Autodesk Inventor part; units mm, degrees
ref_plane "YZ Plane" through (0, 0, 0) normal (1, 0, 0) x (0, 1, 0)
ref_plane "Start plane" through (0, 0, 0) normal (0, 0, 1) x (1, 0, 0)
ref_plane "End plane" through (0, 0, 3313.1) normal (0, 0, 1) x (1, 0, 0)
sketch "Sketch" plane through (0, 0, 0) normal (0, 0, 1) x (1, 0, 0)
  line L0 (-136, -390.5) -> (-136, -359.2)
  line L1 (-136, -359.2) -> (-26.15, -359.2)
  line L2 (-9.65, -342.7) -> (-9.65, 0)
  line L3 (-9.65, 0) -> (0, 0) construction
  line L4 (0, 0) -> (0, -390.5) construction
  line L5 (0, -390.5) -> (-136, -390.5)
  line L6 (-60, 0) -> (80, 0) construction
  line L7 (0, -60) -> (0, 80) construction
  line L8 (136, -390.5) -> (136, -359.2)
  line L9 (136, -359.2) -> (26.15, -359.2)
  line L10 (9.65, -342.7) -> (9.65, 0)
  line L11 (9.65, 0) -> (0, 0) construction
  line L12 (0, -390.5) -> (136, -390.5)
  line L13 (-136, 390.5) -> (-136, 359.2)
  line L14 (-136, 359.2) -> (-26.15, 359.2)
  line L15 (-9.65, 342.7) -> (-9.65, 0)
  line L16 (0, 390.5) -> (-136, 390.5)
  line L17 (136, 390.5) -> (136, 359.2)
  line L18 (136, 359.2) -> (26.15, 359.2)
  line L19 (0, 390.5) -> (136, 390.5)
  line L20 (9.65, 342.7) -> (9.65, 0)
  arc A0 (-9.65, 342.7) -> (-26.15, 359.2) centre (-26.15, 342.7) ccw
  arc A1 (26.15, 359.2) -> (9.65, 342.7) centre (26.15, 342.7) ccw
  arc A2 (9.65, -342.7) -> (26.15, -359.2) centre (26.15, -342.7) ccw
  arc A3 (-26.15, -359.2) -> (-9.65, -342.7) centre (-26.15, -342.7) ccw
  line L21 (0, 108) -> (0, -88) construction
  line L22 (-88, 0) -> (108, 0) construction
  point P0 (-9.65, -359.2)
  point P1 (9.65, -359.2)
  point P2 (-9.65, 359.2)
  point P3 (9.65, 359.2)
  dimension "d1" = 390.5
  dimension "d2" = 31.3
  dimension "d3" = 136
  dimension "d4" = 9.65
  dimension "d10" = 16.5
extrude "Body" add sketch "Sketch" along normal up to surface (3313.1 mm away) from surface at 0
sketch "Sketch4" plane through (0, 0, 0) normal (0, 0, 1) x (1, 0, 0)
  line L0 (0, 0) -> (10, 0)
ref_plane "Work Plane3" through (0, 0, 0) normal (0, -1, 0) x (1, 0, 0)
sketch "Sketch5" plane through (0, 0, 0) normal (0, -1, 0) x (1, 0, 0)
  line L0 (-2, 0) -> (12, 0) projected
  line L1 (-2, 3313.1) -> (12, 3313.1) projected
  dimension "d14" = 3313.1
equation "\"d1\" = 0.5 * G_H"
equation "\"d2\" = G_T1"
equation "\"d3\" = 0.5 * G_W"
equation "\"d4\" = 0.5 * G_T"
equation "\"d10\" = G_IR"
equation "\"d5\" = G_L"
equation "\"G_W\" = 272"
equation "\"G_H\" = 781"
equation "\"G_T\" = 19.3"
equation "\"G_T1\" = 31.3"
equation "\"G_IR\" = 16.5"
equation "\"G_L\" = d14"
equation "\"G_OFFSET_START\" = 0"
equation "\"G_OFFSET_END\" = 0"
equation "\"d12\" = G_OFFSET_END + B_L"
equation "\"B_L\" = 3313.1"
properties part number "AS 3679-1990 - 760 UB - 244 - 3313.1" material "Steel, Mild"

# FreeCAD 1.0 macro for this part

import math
import FreeCAD as App
import Part
import Sketcher

V = App.Vector
Q = App.Units.Quantity

doc = App.newDocument("Part")
body = doc.addObject("PartDesign::Body", "Body")

# Sketch on XY plane
sketch1 = doc.addObject("Sketcher::SketchObject", "Sketch")
body.addObject(sketch1)
sketch1.AttachmentSupport = (doc.XY_Plane, [""])
sketch1.MapMode = "FlatFace"
sketch1.addGeometry([
    Part.LineSegment(V(-136, -359, 0), V(-136, -390, 0)),  # 0
    Part.LineSegment(V(-136, -390, 0), V(136, -390, 0)),  # 1
    Part.LineSegment(V(136, -390, 0), V(136, -359, 0)),  # 2
    Part.LineSegment(V(136, -359, 0), V(26, -359, 0)),  # 3
    Part.ArcOfCircle(Part.Circle(V(26, -343, 0), V(0, 0, 1), 16), math.radians(180), math.radians(270)),  # 4
    Part.LineSegment(V(10, -343, 0), V(10, 343, 0)),  # 5
    Part.ArcOfCircle(Part.Circle(V(26, 343, 0), V(0, 0, 1), 16), math.radians(90), math.radians(180)),  # 6
    Part.LineSegment(V(26, 359, 0), V(136, 359, 0)),  # 7
    Part.LineSegment(V(136, 359, 0), V(136, 390, 0)),  # 8
    Part.LineSegment(V(136, 390, 0), V(-136, 390, 0)),  # 9
    Part.LineSegment(V(-136, 390, 0), V(-136, 359, 0)),  # 10
    Part.LineSegment(V(-136, 359, 0), V(-26, 359, 0)),  # 11
    Part.ArcOfCircle(Part.Circle(V(-26, 343, 0), V(0, 0, 1), 16), math.radians(0), math.radians(90)),  # 12
    Part.LineSegment(V(-10, 343, 0), V(-10, -343, 0)),  # 13
    Part.ArcOfCircle(Part.Circle(V(-26, -343, 0), V(0, 0, 1), 16), math.radians(-90), math.radians(0)),  # 14
    Part.LineSegment(V(-26, -359, 0), V(-136, -359, 0)),  # 15
], False)
sketch1.addConstraint([
    Sketcher.Constraint("Coincident", 0, 2, 1, 1),
    Sketcher.Constraint("Coincident", 1, 2, 2, 1),
    Sketcher.Constraint("Coincident", 2, 2, 3, 1),
    Sketcher.Constraint("Tangent", 3, 2, 4, 2),
    Sketcher.Constraint("Tangent", 4, 1, 5, 1),
    Sketcher.Constraint("Tangent", 5, 2, 6, 2),
    Sketcher.Constraint("Tangent", 6, 1, 7, 1),
    Sketcher.Constraint("Coincident", 7, 2, 8, 1),
    Sketcher.Constraint("Coincident", 8, 2, 9, 1),
    Sketcher.Constraint("Coincident", 9, 2, 10, 1),
    Sketcher.Constraint("Coincident", 10, 2, 11, 1),
    Sketcher.Constraint("Tangent", 11, 2, 12, 2),
    Sketcher.Constraint("Tangent", 12, 1, 13, 1),
    Sketcher.Constraint("Tangent", 13, 2, 14, 2),
    Sketcher.Constraint("Tangent", 14, 1, 15, 1),
    Sketcher.Constraint("Coincident", 15, 2, 0, 1),
    Sketcher.Constraint("Vertical", 0),
    Sketcher.Constraint("Horizontal", 1),
    Sketcher.Constraint("Vertical", 2),
    Sketcher.Constraint("Horizontal", 3),
    Sketcher.Constraint("Vertical", 5),
    Sketcher.Constraint("Horizontal", 7),
    Sketcher.Constraint("Vertical", 8),
    Sketcher.Constraint("Horizontal", 9),
    Sketcher.Constraint("Vertical", 10),
    Sketcher.Constraint("Horizontal", 11),
    Sketcher.Constraint("Vertical", 13),
    Sketcher.Constraint("Horizontal", 15),
    Sketcher.Constraint("Equal", 4, 6),
    Sketcher.Constraint("Equal", 6, 12),
    Sketcher.Constraint("Equal", 12, 14),
    Sketcher.Constraint("Symmetric", 4, 3, 12, 3, -1, 1),
    Sketcher.Constraint("Symmetric", 0, 2, 8, 2, -1, 1),
    Sketcher.Constraint("Symmetric", 7, 2, 10, 2, -2),
    Sketcher.Constraint("Symmetric", 2, 2, 15, 2, -2),
    Sketcher.Constraint("Radius", 4, Q("16.5 mm")),
    Sketcher.Constraint("DistanceY", 0, 2, 0, 1, Q("31.3 mm")),
    Sketcher.Constraint("DistanceX", 0, 2, -1, 1, Q("136 mm")),
    Sketcher.Constraint("DistanceY", 0, 2, -1, 1, Q("390.5 mm")),
    Sketcher.Constraint("DistanceX", -1, 1, 4, 1, Q("9.65 mm")),
])
pad1 = doc.addObject("PartDesign::Pad", "Pad")
body.addObject(pad1)
pad1.Profile = sketch1
pad1.Length = 3313.1

doc.recompute()
